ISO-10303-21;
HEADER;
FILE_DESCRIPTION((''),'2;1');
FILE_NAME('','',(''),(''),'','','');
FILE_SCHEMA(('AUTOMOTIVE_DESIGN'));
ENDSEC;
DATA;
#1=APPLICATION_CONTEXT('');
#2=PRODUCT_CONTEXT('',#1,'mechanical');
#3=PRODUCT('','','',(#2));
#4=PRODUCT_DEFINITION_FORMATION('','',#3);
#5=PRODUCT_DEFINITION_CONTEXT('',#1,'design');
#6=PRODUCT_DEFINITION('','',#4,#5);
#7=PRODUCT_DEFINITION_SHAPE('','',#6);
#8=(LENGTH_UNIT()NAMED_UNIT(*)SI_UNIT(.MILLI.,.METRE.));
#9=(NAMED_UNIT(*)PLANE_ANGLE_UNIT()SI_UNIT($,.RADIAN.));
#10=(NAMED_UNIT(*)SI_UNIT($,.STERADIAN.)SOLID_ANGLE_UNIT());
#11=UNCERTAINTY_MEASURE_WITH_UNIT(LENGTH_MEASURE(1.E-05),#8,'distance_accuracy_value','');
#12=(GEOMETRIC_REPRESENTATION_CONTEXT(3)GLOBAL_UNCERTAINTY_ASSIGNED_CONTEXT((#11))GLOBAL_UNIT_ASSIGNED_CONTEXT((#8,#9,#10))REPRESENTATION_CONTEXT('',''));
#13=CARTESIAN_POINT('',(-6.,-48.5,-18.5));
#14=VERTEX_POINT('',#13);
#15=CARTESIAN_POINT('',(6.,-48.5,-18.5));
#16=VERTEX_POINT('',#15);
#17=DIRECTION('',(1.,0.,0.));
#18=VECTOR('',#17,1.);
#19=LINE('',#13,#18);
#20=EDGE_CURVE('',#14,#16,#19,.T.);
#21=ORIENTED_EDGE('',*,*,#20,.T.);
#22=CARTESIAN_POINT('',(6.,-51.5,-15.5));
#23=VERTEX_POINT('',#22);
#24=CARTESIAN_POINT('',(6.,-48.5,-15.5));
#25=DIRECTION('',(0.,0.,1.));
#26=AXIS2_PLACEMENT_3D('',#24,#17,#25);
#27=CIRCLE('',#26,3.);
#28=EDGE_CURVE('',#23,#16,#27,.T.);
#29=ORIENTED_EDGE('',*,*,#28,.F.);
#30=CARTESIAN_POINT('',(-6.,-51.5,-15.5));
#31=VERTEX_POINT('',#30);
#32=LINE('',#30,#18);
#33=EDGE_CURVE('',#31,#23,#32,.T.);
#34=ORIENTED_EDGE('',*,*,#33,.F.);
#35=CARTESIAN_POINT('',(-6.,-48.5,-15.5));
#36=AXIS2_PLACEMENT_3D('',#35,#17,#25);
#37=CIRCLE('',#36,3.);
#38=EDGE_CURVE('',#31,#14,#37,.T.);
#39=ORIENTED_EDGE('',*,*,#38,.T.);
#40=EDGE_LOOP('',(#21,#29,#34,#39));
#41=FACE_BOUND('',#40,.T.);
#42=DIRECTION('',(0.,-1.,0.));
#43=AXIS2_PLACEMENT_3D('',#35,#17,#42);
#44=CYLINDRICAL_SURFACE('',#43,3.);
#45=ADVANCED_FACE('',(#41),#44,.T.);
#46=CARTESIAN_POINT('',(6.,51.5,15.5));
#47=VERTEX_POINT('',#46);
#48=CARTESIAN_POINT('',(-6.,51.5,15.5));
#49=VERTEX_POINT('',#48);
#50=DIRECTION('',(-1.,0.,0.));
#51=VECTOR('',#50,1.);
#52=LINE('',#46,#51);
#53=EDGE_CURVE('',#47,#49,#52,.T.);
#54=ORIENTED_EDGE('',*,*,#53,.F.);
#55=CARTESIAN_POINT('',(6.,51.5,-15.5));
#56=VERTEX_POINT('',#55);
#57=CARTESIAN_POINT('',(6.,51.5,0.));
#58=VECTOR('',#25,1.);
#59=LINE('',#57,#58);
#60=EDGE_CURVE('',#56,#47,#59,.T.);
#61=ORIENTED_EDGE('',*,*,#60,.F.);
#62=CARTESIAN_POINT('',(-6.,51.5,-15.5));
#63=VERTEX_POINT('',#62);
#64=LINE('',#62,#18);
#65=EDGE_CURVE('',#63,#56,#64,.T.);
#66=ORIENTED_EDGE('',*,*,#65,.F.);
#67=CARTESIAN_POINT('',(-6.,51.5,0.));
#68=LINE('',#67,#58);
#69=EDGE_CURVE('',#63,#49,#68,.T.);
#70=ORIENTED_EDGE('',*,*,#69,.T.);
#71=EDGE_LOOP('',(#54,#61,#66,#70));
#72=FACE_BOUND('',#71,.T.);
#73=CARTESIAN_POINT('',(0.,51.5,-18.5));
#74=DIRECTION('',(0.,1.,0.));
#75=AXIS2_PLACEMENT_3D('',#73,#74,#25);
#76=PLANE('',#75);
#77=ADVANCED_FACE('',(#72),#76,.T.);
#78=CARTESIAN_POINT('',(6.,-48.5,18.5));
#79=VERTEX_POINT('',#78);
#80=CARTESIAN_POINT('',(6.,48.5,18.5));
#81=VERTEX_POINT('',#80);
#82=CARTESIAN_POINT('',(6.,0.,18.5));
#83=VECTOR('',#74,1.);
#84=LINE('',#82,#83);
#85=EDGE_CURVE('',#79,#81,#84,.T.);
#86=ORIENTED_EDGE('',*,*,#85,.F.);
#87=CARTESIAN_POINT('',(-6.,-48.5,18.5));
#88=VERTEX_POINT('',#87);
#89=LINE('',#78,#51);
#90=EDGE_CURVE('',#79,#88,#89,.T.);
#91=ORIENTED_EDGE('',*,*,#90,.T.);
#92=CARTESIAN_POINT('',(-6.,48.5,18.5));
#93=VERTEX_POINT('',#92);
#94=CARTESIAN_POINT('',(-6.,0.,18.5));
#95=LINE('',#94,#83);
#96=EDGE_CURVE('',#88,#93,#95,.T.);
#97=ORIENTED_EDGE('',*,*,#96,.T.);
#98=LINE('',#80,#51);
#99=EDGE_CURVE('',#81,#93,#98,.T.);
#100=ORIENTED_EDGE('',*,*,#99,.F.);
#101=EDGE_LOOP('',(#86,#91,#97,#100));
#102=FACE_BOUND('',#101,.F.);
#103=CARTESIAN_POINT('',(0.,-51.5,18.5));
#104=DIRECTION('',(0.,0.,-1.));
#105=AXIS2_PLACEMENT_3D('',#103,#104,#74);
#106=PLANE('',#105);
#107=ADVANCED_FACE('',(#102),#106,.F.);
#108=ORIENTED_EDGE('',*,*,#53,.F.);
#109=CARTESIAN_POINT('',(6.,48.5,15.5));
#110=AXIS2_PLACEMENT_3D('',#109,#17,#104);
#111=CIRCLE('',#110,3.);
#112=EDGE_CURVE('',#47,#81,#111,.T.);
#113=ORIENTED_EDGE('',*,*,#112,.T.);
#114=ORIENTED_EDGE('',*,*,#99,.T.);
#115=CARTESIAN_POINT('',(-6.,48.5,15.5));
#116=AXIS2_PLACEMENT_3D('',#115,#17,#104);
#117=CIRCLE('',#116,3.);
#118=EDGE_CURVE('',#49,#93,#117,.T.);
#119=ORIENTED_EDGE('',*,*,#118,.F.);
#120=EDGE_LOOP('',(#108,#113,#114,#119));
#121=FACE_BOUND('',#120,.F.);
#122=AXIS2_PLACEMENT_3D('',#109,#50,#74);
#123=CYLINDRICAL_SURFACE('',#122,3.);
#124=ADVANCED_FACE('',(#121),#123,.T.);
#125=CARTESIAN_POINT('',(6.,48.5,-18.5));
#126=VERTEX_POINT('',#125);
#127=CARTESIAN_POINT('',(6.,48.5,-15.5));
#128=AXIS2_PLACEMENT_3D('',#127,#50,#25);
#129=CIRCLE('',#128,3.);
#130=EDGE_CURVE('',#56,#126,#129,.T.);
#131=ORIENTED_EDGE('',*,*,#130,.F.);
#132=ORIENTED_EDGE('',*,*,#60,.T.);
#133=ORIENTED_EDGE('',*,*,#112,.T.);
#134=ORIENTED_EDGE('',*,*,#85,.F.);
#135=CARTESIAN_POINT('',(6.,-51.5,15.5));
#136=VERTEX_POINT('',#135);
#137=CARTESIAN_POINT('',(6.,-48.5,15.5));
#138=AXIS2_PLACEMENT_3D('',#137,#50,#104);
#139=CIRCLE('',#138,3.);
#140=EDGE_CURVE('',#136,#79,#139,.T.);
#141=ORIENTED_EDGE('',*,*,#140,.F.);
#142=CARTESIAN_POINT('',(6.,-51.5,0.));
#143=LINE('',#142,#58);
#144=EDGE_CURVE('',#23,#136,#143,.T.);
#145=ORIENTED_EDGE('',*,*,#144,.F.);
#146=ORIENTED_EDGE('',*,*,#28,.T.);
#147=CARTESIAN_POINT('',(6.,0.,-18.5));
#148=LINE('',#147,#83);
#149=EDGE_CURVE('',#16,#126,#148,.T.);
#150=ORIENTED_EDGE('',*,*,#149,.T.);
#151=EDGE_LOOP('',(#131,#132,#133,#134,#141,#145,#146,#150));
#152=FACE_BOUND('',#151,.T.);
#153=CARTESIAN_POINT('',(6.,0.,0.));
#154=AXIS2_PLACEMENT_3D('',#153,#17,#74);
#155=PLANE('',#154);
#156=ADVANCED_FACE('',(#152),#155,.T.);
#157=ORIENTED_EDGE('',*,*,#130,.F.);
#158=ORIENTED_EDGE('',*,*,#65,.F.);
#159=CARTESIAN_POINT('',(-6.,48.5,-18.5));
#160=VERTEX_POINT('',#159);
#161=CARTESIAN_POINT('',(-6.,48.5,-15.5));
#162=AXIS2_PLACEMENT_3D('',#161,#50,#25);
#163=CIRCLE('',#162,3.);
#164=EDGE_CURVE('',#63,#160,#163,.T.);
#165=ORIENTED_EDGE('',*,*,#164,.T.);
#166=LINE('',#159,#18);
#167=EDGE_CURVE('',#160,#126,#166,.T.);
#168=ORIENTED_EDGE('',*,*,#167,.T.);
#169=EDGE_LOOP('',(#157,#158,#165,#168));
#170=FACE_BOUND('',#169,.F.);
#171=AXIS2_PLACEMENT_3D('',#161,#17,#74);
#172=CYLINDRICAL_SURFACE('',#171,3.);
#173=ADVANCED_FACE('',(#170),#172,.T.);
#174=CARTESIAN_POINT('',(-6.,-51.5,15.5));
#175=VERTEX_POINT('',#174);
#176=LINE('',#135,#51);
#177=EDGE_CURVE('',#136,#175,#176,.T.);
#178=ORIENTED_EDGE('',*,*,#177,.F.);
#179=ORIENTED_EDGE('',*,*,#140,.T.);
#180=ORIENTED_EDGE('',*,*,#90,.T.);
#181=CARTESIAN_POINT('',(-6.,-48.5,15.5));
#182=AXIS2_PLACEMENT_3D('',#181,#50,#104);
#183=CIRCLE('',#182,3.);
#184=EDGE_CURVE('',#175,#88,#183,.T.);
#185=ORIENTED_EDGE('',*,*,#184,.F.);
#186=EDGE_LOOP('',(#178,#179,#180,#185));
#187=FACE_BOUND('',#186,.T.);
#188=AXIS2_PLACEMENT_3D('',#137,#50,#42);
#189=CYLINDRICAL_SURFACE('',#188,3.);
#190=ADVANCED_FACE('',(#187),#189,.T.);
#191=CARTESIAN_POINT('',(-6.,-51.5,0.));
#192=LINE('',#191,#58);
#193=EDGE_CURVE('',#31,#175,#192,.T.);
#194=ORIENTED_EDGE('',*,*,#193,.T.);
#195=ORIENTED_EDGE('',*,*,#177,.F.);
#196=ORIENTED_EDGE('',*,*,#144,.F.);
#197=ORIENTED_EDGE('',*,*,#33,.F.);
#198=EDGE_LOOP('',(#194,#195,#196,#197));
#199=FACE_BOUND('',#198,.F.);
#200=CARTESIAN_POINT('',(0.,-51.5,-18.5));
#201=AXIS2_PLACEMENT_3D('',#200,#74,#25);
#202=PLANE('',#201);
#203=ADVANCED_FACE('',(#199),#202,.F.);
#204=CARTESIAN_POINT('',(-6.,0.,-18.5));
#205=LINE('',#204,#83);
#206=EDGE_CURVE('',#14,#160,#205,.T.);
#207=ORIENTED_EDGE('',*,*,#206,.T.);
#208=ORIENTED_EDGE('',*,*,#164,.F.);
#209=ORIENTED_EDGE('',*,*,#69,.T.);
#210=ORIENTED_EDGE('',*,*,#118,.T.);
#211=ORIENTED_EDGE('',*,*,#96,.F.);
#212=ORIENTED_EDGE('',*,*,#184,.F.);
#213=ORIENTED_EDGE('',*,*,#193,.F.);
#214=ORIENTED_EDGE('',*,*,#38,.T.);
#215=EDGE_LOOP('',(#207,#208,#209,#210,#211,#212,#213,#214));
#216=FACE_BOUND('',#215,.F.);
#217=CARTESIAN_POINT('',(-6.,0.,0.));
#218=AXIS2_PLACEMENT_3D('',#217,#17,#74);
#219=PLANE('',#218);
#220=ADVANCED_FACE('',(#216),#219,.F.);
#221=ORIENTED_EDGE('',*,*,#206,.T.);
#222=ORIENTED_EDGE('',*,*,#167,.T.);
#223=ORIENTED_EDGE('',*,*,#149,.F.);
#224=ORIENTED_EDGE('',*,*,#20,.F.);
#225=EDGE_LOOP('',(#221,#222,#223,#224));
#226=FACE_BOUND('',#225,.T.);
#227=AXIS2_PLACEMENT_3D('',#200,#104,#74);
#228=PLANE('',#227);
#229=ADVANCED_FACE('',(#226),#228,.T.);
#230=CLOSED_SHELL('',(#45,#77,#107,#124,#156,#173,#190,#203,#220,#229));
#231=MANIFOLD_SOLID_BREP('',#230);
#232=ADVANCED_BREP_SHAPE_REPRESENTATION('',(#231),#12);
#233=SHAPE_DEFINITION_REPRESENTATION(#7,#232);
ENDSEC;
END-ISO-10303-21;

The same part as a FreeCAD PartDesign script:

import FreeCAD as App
import Part
import Sketcher

V = App.Vector


def edges_at(feature, points):
    """Names of the edges that pass closest to the given points."""
    edges = feature.Shape.Edges
    near = lambda p: min(range(len(edges)), key=lambda i: edges[i].distToShape(Part.Vertex(*p))[0])
    return sorted({f"Edge{near(p) + 1}" for p in points})

doc = App.newDocument("Part")
params = doc.addObject("Spreadsheet::Sheet", "Params")
for row, (alias, value) in enumerate([
    ("sketch1_width", "103 mm"),
    ("sketch1_height", "37 mm"),
    ("pad1_length", "12 mm"),
    ("fillet_radius", "3 mm"),
], start=1):
    params.set(f"A{row}", alias)
    params.set(f"B{row}", "=" + value)
    params.setAlias(f"B{row}", alias)

body = doc.addObject("PartDesign::Body", "Body")

# Sketch on YZ plane
sketch1 = body.newObject("Sketcher::SketchObject", "Sketch")
sketch1.AttachmentSupport = (doc.getObject("YZ_Plane"), [""])
sketch1.MapMode = "FlatFace"
sketch1.addGeometry(Part.LineSegment(V(-52, 18, 0), V(-52, -18, 0)), False)
sketch1.addGeometry(Part.LineSegment(V(-52, -18, 0), V(52, -18, 0)), False)
sketch1.addGeometry(Part.LineSegment(V(52, -18, 0), V(52, 18, 0)), False)
sketch1.addGeometry(Part.LineSegment(V(52, 18, 0), V(-52, 18, 0)), False)
sketch1.addConstraint(Sketcher.Constraint("Coincident", 0, 2, 1, 1))
sketch1.addConstraint(Sketcher.Constraint("Coincident", 1, 2, 2, 1))
sketch1.addConstraint(Sketcher.Constraint("Coincident", 2, 2, 3, 1))
sketch1.addConstraint(Sketcher.Constraint("Coincident", 3, 2, 0, 1))
sketch1.addConstraint(Sketcher.Constraint("Vertical", 0))
sketch1.addConstraint(Sketcher.Constraint("Horizontal", 1))
sketch1.addConstraint(Sketcher.Constraint("Vertical", 2))
sketch1.addConstraint(Sketcher.Constraint("Horizontal", 3))
sketch1.addConstraint(Sketcher.Constraint("Symmetric", 0, 2, 2, 2, -1, 1))
sketch1.addConstraint(Sketcher.Constraint("DistanceX", 1, 1, 1, 2, 103.0))
sketch1.addConstraint(Sketcher.Constraint("DistanceY", 0, 2, 0, 1, 37.0))
sketch1.setExpression("Constraints[9]", "Params.sketch1_width")
sketch1.setExpression("Constraints[10]", "Params.sketch1_height")
pad1 = body.newObject("PartDesign::Pad", "Pad")
pad1.Profile = sketch1
pad1.setExpression("Length", "Params.pad1_length")
pad1.Midplane = True
doc.recompute()

fillet = body.newObject("PartDesign::Fillet", "Fillet")
fillet.Base = (pad1, edges_at(pad1, [
    (0, -51.5, 18.5),
    (0, -51.5, -18.5),
    (0, 51.5, -18.5),
    (0, 51.5, 18.5),
]))
fillet.setExpression("Radius", "Params.fillet_radius")

doc.recompute()
